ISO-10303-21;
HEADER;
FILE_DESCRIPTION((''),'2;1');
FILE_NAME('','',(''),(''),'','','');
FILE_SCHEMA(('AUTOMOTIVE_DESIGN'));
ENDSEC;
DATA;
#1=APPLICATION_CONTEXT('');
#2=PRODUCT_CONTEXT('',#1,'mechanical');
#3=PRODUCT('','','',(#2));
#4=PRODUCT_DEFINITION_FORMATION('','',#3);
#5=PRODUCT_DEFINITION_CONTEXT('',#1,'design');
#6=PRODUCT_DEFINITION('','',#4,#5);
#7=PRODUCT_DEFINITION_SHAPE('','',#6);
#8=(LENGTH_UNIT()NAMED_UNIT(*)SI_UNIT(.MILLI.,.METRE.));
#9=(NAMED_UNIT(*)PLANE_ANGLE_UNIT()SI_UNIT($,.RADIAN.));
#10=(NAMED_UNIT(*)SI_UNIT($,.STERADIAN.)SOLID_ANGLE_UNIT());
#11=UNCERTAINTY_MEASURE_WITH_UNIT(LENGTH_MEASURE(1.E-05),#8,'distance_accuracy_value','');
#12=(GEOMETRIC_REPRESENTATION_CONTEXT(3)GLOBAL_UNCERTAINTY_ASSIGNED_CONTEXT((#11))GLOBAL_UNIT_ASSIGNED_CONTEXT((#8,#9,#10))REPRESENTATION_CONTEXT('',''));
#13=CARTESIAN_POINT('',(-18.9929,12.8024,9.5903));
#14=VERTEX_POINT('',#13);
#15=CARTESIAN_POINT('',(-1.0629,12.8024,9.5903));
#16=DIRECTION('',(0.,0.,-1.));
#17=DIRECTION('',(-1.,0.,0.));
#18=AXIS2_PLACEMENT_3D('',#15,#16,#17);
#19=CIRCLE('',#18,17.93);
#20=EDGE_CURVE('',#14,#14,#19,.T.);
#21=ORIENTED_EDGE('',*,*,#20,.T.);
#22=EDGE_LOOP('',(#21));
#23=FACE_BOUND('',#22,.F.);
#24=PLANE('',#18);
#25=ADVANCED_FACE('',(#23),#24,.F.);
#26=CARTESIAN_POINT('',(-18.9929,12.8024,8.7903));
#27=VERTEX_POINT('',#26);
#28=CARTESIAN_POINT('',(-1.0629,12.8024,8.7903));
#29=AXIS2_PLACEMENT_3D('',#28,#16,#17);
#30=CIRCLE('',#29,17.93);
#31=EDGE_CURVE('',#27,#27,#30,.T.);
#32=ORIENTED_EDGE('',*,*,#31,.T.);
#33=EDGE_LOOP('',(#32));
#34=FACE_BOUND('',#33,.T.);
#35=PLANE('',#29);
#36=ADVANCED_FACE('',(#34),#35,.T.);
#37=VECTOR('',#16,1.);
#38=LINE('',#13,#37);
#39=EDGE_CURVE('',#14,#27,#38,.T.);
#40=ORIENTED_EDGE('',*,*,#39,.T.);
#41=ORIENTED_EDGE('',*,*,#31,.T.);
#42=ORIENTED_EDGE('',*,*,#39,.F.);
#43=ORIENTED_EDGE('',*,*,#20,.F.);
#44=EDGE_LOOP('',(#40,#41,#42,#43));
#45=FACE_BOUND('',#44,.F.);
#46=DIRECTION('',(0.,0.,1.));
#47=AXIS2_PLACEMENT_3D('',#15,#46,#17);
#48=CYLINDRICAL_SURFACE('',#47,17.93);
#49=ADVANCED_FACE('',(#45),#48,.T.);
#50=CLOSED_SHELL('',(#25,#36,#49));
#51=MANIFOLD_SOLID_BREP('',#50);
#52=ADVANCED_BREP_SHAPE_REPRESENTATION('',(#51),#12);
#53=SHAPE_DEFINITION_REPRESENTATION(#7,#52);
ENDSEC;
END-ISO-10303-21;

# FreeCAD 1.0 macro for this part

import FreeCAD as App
import Part
import Sketcher

doc = App.newDocument("Part")
params = doc.addObject("Spreadsheet::Sheet", "Params")
for row, (alias, value) in enumerate([
    ("sketch1_diameter", "35.86 mm"),
    ("pad1_length", "0.8 mm"),
], start=1):
    params.set(f"A{row}", alias)
    params.set(f"B{row}", "=" + value)
    params.setAlias(f"B{row}", alias)

body = doc.addObject("PartDesign::Body", "Body")

# Sketch on XY plane
sketch1 = body.newObject("Sketcher::SketchObject", "Sketch")
sketch1.AttachmentSupport = (doc.getObject("XY_Plane"), [""])
sketch1.MapMode = "FlatFace"
sketch1.AttachmentOffset = App.Placement(App.Vector(0, 0, 9.5903), App.Rotation())
sketch1.addGeometry(Part.Circle(App.Vector(-1, 13, 0), App.Vector(0, 0, 1), 18), False)
sketch1.addConstraint([
    Sketcher.Constraint("Diameter", 0, 35.86),
    Sketcher.Constraint("DistanceX", 0, 3, -1, 1, 1.063),
    Sketcher.Constraint("DistanceY", -1, 1, 0, 3, 12.8024),
])
sketch1.setExpression("Constraints[0]", "Params.sketch1_diameter")
pad1 = body.newObject("PartDesign::Pad", "Pad")
pad1.Profile = sketch1
pad1.setExpression("Length", "Params.pad1_length")
pad1.Reversed = True

doc.recompute()
